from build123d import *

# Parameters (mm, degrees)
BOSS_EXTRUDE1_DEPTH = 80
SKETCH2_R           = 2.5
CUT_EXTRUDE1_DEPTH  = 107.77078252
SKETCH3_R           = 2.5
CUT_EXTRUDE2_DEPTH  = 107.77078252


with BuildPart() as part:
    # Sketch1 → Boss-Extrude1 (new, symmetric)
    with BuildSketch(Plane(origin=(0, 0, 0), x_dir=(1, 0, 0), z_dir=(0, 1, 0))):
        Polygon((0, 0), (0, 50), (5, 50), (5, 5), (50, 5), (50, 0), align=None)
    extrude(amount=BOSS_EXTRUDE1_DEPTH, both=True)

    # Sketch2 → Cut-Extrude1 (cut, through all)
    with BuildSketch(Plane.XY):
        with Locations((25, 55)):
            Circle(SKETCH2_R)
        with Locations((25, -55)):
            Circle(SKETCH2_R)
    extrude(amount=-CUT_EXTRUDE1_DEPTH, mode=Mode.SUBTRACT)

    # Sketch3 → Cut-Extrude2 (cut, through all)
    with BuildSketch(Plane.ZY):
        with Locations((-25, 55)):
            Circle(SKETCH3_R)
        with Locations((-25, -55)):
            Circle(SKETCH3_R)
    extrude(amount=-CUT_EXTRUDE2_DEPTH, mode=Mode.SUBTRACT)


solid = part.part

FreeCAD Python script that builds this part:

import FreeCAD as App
import Part
import Sketcher

doc = App.newDocument("Part")
body = doc.addObject("PartDesign::Body", "Body")

sketch1 = doc.addObject("Sketcher::SketchObject", "Sketch")
body.addObject(sketch1)
sketch1.AttachmentSupport = (doc.XZ_Plane, [""])
sketch1.MapMode = "FlatFace"
sketch1.addGeometry(Part.LineSegment(App.Vector(0, -50, 0), App.Vector(0, 0, 0)), False)
sketch1.addGeometry(Part.LineSegment(App.Vector(0, 0, 0), App.Vector(50, 0, 0)), False)
sketch1.addGeometry(Part.LineSegment(App.Vector(50, 0, 0), App.Vector(50, -5, 0)), False)
sketch1.addGeometry(Part.LineSegment(App.Vector(50, -5, 0), App.Vector(5, -5, 0)), False)
sketch1.addGeometry(Part.LineSegment(App.Vector(5, -5, 0), App.Vector(5, -50, 0)), False)
sketch1.addGeometry(Part.LineSegment(App.Vector(5, -50, 0), App.Vector(0, -50, 0)), False)
sketch1.addConstraint(Sketcher.Constraint("Coincident", 0, 2, 1, 1))
sketch1.addConstraint(Sketcher.Constraint("Coincident", 1, 2, 2, 1))
sketch1.addConstraint(Sketcher.Constraint("Coincident", 2, 2, 3, 1))
sketch1.addConstraint(Sketcher.Constraint("Coincident", 3, 2, 4, 1))
sketch1.addConstraint(Sketcher.Constraint("Coincident", 4, 2, 5, 1))
sketch1.addConstraint(Sketcher.Constraint("Coincident", 5, 2, 0, 1))
sketch1.addConstraint(Sketcher.Constraint("Vertical", 0))
sketch1.addConstraint(Sketcher.Constraint("Horizontal", 1))
sketch1.addConstraint(Sketcher.Constraint("Vertical", 2))
sketch1.addConstraint(Sketcher.Constraint("Horizontal", 3))
sketch1.addConstraint(Sketcher.Constraint("Vertical", 4))
sketch1.addConstraint(Sketcher.Constraint("Horizontal", 5))
sketch1.addConstraint(Sketcher.Constraint("Coincident", 0, 2, -1, 1))
sketch1.addConstraint(Sketcher.Constraint("Equal", 1, 0))
sketch1.addConstraint(Sketcher.Constraint("Equal", 5, 2))
sketch1.addConstraint(Sketcher.Constraint("DistanceX", 1, 1, 1, 2, 50.0))
sketch1.addConstraint(Sketcher.Constraint("DistanceX", 3, 2, 3, 1, 45.0))
pad1 = doc.addObject("PartDesign::Pad", "Pad")
body.addObject(pad1)
pad1.Profile = sketch1
pad1.Length = 160
pad1.Midplane = True

sketch2 = doc.addObject("Sketcher::SketchObject", "Sketch001")
body.addObject(sketch2)
sketch2.AttachmentSupport = (doc.XY_Plane, [""])
sketch2.MapMode = "FlatFace"
sketch2.addGeometry(Part.Circle(App.Vector(25, 55, 0), App.Vector(0, 0, 1), 2.5), False)
sketch2.addGeometry(Part.Circle(App.Vector(25, -55, 0), App.Vector(0, 0, 1), 2.5), False)
sketch2.addConstraint(Sketcher.Constraint("Equal", 0, 1))
sketch2.addConstraint(Sketcher.Constraint("Symmetric", 0, 3, 1, 3, -1))
sketch2.addConstraint(Sketcher.Constraint("Diameter", 0, 5.0))
sketch2.addConstraint(Sketcher.Constraint("DistanceX", -1, 1, 0, 3, 25.0))
sketch2.addConstraint(Sketcher.Constraint("DistanceY", -1, 1, 0, 3, 55.0))
pocket1 = doc.addObject("PartDesign::Pocket", "Pocket")
body.addObject(pocket1)
pocket1.Profile = sketch2
pocket1.Type = "ThroughAll"

sketch3 = doc.addObject("Sketcher::SketchObject", "Sketch002")
body.addObject(sketch3)
sketch3.AttachmentSupport = (doc.YZ_Plane, [""])
sketch3.MapMode = "FlatFace"
sketch3.addGeometry(Part.Circle(App.Vector(55, -25, 0), App.Vector(0, 0, 1), 2.5), False)
sketch3.addGeometry(Part.Circle(App.Vector(-55, -25, 0), App.Vector(0, 0, 1), 2.5), False)
sketch3.addConstraint(Sketcher.Constraint("Equal", 0, 1))
sketch3.addConstraint(Sketcher.Constraint("Symmetric", 0, 3, 1, 3, -2))
sketch3.addConstraint(Sketcher.Constraint("Diameter", 0, 5.0))
sketch3.addConstraint(Sketcher.Constraint("DistanceX", -1, 1, 0, 3, 55.0))
sketch3.addConstraint(Sketcher.Constraint("DistanceY", 0, 3, -1, 1, 25.0))
pocket2 = doc.addObject("PartDesign::Pocket", "Pocket001")
body.addObject(pocket2)
pocket2.Profile = sketch3
pocket2.Type = "ThroughAll"
pocket2.Reversed = True

doc.recompute()
